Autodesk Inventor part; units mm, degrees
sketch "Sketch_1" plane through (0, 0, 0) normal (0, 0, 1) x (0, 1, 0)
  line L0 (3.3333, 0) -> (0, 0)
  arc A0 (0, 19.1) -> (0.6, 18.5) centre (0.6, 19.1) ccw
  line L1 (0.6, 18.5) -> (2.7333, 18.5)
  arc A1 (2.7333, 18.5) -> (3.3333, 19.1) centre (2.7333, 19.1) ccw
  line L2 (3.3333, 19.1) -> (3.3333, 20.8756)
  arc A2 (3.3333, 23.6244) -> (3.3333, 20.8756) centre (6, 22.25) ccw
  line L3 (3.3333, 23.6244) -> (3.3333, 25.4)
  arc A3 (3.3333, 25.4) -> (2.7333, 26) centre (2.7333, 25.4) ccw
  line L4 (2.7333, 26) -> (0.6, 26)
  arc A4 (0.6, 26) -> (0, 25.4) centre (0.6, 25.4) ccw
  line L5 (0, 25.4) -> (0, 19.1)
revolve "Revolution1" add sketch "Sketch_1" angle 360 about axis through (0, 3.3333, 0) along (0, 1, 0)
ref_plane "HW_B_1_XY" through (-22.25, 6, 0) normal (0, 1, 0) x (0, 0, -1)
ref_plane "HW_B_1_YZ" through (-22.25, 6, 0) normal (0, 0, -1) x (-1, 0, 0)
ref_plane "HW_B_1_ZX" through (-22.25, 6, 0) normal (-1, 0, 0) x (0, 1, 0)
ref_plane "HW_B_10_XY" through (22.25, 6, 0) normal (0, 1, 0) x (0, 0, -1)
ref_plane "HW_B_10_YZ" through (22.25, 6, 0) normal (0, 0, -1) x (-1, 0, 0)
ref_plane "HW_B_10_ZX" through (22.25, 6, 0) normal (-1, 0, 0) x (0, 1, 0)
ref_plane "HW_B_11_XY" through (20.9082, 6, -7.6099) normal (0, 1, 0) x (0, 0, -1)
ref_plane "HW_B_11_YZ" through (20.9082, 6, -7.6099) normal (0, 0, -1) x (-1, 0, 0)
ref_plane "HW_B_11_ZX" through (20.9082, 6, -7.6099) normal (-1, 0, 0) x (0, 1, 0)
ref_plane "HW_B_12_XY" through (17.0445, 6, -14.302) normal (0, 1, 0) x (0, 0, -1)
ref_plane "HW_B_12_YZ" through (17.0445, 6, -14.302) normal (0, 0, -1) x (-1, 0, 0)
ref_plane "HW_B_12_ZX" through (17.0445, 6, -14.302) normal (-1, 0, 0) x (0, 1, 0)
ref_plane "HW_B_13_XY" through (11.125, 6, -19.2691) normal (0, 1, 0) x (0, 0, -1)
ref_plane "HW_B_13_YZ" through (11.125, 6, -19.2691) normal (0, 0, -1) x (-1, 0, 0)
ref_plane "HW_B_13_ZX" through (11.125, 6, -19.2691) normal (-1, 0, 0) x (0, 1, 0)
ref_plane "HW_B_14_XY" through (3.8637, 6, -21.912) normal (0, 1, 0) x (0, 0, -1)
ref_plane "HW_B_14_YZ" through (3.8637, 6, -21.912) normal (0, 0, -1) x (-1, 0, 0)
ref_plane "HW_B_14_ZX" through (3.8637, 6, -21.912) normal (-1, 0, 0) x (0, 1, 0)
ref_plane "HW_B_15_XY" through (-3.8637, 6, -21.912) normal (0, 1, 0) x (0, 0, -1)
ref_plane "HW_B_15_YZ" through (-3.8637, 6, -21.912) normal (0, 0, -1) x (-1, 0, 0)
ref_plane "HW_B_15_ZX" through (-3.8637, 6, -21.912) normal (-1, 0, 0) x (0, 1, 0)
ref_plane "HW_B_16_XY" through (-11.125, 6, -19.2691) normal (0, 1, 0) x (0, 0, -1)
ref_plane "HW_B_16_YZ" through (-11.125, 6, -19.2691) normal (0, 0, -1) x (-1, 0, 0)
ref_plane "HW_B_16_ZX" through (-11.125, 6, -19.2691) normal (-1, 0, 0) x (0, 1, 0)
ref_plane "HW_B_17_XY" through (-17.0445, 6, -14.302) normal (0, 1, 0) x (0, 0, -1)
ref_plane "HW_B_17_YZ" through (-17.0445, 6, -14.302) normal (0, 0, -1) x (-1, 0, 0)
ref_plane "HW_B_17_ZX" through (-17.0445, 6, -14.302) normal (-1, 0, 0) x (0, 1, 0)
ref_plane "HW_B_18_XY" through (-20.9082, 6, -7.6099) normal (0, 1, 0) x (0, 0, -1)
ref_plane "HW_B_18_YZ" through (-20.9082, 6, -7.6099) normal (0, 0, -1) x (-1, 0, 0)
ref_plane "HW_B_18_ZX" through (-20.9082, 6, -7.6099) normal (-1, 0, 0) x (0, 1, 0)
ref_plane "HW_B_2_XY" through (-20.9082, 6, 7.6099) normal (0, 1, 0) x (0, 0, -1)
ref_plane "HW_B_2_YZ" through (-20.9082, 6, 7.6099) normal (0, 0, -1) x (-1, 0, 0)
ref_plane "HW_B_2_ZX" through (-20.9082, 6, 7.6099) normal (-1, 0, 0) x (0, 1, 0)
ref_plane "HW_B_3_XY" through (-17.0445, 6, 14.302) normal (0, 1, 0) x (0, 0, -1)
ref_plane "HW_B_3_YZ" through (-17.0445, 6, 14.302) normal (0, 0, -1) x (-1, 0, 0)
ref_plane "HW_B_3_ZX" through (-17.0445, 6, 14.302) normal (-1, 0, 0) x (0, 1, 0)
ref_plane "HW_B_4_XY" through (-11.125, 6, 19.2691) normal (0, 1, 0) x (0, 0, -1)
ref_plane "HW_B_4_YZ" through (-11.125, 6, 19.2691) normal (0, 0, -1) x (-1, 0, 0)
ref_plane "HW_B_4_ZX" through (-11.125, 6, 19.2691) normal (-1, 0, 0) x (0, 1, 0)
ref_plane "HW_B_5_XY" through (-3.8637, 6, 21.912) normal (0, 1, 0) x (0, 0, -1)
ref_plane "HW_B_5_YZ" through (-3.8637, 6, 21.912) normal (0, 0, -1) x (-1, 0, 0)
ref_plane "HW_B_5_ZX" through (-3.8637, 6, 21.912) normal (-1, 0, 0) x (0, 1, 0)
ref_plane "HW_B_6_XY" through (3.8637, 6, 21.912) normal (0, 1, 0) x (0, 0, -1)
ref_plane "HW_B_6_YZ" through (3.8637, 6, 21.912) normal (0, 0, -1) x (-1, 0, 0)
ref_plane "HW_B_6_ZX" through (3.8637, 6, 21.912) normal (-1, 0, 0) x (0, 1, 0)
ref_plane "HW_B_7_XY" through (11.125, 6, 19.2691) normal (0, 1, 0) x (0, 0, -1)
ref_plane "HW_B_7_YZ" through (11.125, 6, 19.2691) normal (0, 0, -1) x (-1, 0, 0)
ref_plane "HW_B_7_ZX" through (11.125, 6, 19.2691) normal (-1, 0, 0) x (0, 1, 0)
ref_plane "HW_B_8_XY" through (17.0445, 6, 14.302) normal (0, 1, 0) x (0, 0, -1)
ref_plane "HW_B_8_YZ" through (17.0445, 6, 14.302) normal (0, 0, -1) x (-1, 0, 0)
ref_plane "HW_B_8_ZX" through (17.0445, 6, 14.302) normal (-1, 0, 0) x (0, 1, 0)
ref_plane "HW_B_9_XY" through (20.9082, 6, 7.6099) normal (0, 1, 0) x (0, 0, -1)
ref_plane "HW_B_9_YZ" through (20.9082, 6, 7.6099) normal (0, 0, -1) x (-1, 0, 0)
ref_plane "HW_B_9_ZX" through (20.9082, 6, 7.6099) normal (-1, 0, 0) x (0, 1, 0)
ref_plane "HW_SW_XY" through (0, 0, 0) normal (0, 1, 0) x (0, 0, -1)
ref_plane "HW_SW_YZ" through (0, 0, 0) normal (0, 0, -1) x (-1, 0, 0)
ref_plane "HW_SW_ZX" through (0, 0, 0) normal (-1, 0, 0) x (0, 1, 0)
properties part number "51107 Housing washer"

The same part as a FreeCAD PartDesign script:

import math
import FreeCAD as App
import Part
import Sketcher
from FreeCAD import Vector
Q = App.Units.Quantity

doc = App.newDocument("Part")
body = doc.addObject("PartDesign::Body", "Body")

# Sketch on XY plane
sketch1 = doc.addObject("Sketcher::SketchObject", "Sketch")
body.addObject(sketch1)
sketch1.AttachmentSupport = (doc.XY_Plane, [""])
sketch1.MapMode = "FlatFace"
sketch1.addGeometry(Part.LineSegment(Vector(-25.4, 0, 0), Vector(-19.1, 0, 0)), False)
sketch1.addGeometry(Part.ArcOfCircle(Part.Circle(Vector(-19.1, 0.6, 0), Vector(0, 0, 1), 0.6), math.radians(-90), math.radians(0)), False)
sketch1.addGeometry(Part.LineSegment(Vector(-18.5, 0.6, 0), Vector(-18.5, 2.7333, 0)), False)
sketch1.addGeometry(Part.ArcOfCircle(Part.Circle(Vector(-19.1, 2.7333, 0), Vector(0, 0, 1), 0.6), math.radians(0), math.radians(90)), False)
sketch1.addGeometry(Part.LineSegment(Vector(-19.1, 3.3333, 0), Vector(-20.8756, 3.3333, 0)), False)
sketch1.addGeometry(Part.ArcOfCircle(Part.Circle(Vector(-22.25, 6, 0), Vector(0, 0, 1), 3.000044), math.radians(-117.266287), math.radians(-62.733713)), False)
sketch1.addGeometry(Part.LineSegment(Vector(-23.6244, 3.3333, 0), Vector(-25.4, 3.3333, 0)), False)
sketch1.addGeometry(Part.ArcOfCircle(Part.Circle(Vector(-25.4, 2.7333, 0), Vector(0, 0, 1), 0.6), math.radians(90), math.radians(180)), False)
sketch1.addGeometry(Part.LineSegment(Vector(-26, 2.7333, 0), Vector(-26, 0.6, 0)), False)
sketch1.addGeometry(Part.ArcOfCircle(Part.Circle(Vector(-25.4, 0.6, 0), Vector(0, 0, 1), 0.6), math.radians(180), math.radians(270)), False)
sketch1.addConstraint(Sketcher.Constraint("Tangent", 0, 2, 1, 1))
sketch1.addConstraint(Sketcher.Constraint("Tangent", 1, 2, 2, 1))
sketch1.addConstraint(Sketcher.Constraint("Tangent", 2, 2, 3, 1))
sketch1.addConstraint(Sketcher.Constraint("Tangent", 3, 2, 4, 1))
sketch1.addConstraint(Sketcher.Constraint("Coincident", 4, 2, 5, 2))
sketch1.addConstraint(Sketcher.Constraint("Coincident", 5, 1, 6, 1))
sketch1.addConstraint(Sketcher.Constraint("Tangent", 6, 2, 7, 1))
sketch1.addConstraint(Sketcher.Constraint("Tangent", 7, 2, 8, 1))
sketch1.addConstraint(Sketcher.Constraint("Tangent", 8, 2, 9, 1))
sketch1.addConstraint(Sketcher.Constraint("Tangent", 9, 2, 0, 1))
sketch1.addConstraint(Sketcher.Constraint("Horizontal", 0))
sketch1.addConstraint(Sketcher.Constraint("Vertical", 2))
sketch1.addConstraint(Sketcher.Constraint("Horizontal", 4))
sketch1.addConstraint(Sketcher.Constraint("Horizontal", 6))
sketch1.addConstraint(Sketcher.Constraint("Vertical", 8))
sketch1.addConstraint(Sketcher.Constraint("Equal", 1, 3))
sketch1.addConstraint(Sketcher.Constraint("Equal", 3, 7))
sketch1.addConstraint(Sketcher.Constraint("Equal", 7, 9))
sketch1.addConstraint(Sketcher.Constraint("PointOnObject", 0, 2, -1))
sketch1.addConstraint(Sketcher.Constraint("Horizontal", 3, 3, 7, 3))
sketch1.addConstraint(Sketcher.Constraint("Equal", 4, 6))
sketch1.addConstraint(Sketcher.Constraint("Radius", 5, Q("3 mm")))
sketch1.addConstraint(Sketcher.Constraint("Radius", 1, Q("0.6 mm")))
sketch1.addConstraint(Sketcher.Constraint("DistanceX", 0, 1, 0, 2, Q("6.3 mm")))
sketch1.addConstraint(Sketcher.Constraint("DistanceY", -1, 1, 5, 3, Q("6 mm")))
sketch1.addConstraint(Sketcher.Constraint("DistanceX", 7, 2, -1, 1, Q("26 mm")))
sketch1.addConstraint(Sketcher.Constraint("DistanceX", 4, 2, 4, 1, Q("1.7756 mm")))
revolution = doc.addObject("PartDesign::Revolution", "Revolution")
body.addObject(revolution)
revolution.Profile = sketch1
revolution.ReferenceAxis = (sketch1, ["V_Axis"])
revolution.Angle = 360

doc.recompute()
